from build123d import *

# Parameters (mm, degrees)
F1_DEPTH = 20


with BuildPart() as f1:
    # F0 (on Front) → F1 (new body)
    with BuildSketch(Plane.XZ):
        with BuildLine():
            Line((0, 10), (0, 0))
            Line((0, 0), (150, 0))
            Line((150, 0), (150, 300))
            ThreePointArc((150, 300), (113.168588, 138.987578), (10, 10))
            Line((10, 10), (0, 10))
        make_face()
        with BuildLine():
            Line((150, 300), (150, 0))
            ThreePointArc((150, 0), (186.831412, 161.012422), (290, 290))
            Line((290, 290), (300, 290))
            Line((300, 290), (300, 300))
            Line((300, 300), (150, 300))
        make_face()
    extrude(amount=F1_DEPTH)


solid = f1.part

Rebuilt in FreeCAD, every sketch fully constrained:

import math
import FreeCAD as App
import Part
import Sketcher

V = App.Vector

doc = App.newDocument("Part")
body = doc.addObject("PartDesign::Body", "Body")

sketch1 = body.newObject("Sketcher::SketchObject", "Sketch")
sketch1.AttachmentSupport = (doc.getObject("XZ_Plane"), [""])
sketch1.MapMode = "FlatFace"
sketch1.addGeometry([
    Part.LineSegment(V(0, 10, 0), V(0, 0, 0)),
    Part.LineSegment(V(0, 0, 0), V(150, 0, 0)),
    Part.ArcOfCircle(Part.Circle(V(520, 0, 0), V(0, 0, 1), 370), math.radians(128), math.radians(180)),
    Part.LineSegment(V(290, 290, 0), V(300, 290, 0)),
    Part.LineSegment(V(300, 290, 0), V(300, 300, 0)),
    Part.LineSegment(V(300, 300, 0), V(150, 300, 0)),
    Part.ArcOfCircle(Part.Circle(V(-220, 300, 0), V(0, 0, 1), 370), math.radians(-52), math.radians(0)),
    Part.LineSegment(V(10, 10, 0), V(0, 10, 0)),
], False)
sketch1.addConstraint([
    Sketcher.Constraint("Coincident", 0, 2, 1, 1),
    Sketcher.Constraint("Coincident", 1, 2, 2, 2),
    Sketcher.Constraint("Coincident", 2, 1, 3, 1),
    Sketcher.Constraint("Coincident", 3, 2, 4, 1),
    Sketcher.Constraint("Coincident", 4, 2, 5, 1),
    Sketcher.Constraint("Coincident", 5, 2, 6, 2),
    Sketcher.Constraint("Coincident", 6, 1, 7, 1),
    Sketcher.Constraint("Coincident", 7, 2, 0, 1),
    Sketcher.Constraint("Vertical", 0),
    Sketcher.Constraint("Horizontal", 1),
    Sketcher.Constraint("Horizontal", 3),
    Sketcher.Constraint("Vertical", 4),
    Sketcher.Constraint("Horizontal", 5),
    Sketcher.Constraint("Horizontal", 7),
    Sketcher.Constraint("Coincident", 0, 2, -1, 1),
    Sketcher.Constraint("Equal", 2, 6),
    Sketcher.Constraint("PointOnObject", 2, 3, -1),
    Sketcher.Constraint("Horizontal", 6, 3, 4, 2),
    Sketcher.Constraint("Vertical", 1, 2, 5, 2),
    Sketcher.Constraint("Equal", 1, 5),
    Sketcher.Constraint("Equal", 3, 7),
    Sketcher.Constraint("Equal", 7, 0),
    Sketcher.Constraint("DistanceX", 1, 1, 1, 2, 150.0),
    Sketcher.Constraint("DistanceX", 3, 1, 3, 2, 10.0),
    Sketcher.Constraint("DistanceY", -1, 1, 6, 3, 300.0),
])
pad1 = body.newObject("PartDesign::Pad", "Pad")
pad1.Profile = sketch1
pad1.Length = 20

doc.recompute()
